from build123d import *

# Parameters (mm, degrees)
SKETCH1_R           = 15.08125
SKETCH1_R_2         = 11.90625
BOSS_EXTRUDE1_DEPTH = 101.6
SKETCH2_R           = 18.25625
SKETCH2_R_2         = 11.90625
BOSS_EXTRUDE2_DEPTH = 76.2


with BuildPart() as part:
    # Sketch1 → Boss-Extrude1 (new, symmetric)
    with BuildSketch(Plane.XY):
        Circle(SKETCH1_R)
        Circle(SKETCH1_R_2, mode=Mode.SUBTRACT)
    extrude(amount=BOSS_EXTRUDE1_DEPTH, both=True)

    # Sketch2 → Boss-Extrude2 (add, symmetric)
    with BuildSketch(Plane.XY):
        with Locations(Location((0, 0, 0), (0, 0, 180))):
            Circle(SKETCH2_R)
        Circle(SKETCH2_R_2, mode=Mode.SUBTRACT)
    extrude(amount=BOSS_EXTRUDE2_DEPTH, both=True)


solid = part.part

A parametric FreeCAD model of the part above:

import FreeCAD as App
import Part
import Sketcher

V = App.Vector
Q = App.Units.Quantity

doc = App.newDocument("Part")
params = doc.addObject("Spreadsheet::Sheet", "Params")
for row, (alias, value) in enumerate([
    ("sketch1_diameter", "1.1875 in"),
    ("sketch1_diameter2", "0.9375 in"),
    ("pad1_length", "8 in"),
    ("sketch2_diameter", "1.4375 in"),
    ("sketch2_diameter2", "0.9375 in"),
    ("pad2_length", "6 in"),
], start=1):
    params.set(f"A{row}", alias)
    params.set(f"B{row}", "=" + value)
    params.setAlias(f"B{row}", alias)

body = doc.addObject("PartDesign::Body", "Body")

sketch1 = body.newObject("Sketcher::SketchObject", "Sketch")
sketch1.AttachmentSupport = (doc.getObject("XY_Plane"), [""])
sketch1.MapMode = "FlatFace"
sketch1.addGeometry([
    Part.Circle(V(0, 0, 0), V(0, 0, 1), 15.08125),
    Part.Circle(V(0, 0, 0), V(0, 0, 1), 11.90625),
], False)
sketch1.addConstraint([
    Sketcher.Constraint("Coincident", 0, 3, -1, 1),
    Sketcher.Constraint("Coincident", 1, 3, -1, 1),
    Sketcher.Constraint("Diameter", 0, Q("1.1875 in")),
    Sketcher.Constraint("Diameter", 1, Q("0.9375 in")),
])
sketch1.setExpression("Constraints[2]", "Params.sketch1_diameter")
sketch1.setExpression("Constraints[3]", "Params.sketch1_diameter2")
pad1 = body.newObject("PartDesign::Pad", "Pad")
pad1.Profile = sketch1
pad1.setExpression("Length", "Params.pad1_length")
pad1.Midplane = True

sketch2 = body.newObject("Sketcher::SketchObject", "Sketch001")
sketch2.AttachmentSupport = (doc.getObject("XY_Plane"), [""])
sketch2.MapMode = "FlatFace"
sketch2.addGeometry([
    Part.Circle(V(0, 0, 0), V(0, 0, 1), 18.25625),
    Part.Circle(V(0, 0, 0), V(0, 0, 1), 11.90625),
], False)
sketch2.addConstraint([
    Sketcher.Constraint("Coincident", 0, 3, -1, 1),
    Sketcher.Constraint("Coincident", 1, 3, -1, 1),
    Sketcher.Constraint("Diameter", 0, Q("1.4375 in")),
    Sketcher.Constraint("Diameter", 1, Q("0.9375 in")),
])
sketch2.setExpression("Constraints[2]", "Params.sketch2_diameter")
sketch2.setExpression("Constraints[3]", "Params.sketch2_diameter2")
pad2 = body.newObject("PartDesign::Pad", "Pad001")
pad2.Profile = sketch2
pad2.setExpression("Length", "Params.pad2_length")
pad2.Midplane = True

doc.recompute()
